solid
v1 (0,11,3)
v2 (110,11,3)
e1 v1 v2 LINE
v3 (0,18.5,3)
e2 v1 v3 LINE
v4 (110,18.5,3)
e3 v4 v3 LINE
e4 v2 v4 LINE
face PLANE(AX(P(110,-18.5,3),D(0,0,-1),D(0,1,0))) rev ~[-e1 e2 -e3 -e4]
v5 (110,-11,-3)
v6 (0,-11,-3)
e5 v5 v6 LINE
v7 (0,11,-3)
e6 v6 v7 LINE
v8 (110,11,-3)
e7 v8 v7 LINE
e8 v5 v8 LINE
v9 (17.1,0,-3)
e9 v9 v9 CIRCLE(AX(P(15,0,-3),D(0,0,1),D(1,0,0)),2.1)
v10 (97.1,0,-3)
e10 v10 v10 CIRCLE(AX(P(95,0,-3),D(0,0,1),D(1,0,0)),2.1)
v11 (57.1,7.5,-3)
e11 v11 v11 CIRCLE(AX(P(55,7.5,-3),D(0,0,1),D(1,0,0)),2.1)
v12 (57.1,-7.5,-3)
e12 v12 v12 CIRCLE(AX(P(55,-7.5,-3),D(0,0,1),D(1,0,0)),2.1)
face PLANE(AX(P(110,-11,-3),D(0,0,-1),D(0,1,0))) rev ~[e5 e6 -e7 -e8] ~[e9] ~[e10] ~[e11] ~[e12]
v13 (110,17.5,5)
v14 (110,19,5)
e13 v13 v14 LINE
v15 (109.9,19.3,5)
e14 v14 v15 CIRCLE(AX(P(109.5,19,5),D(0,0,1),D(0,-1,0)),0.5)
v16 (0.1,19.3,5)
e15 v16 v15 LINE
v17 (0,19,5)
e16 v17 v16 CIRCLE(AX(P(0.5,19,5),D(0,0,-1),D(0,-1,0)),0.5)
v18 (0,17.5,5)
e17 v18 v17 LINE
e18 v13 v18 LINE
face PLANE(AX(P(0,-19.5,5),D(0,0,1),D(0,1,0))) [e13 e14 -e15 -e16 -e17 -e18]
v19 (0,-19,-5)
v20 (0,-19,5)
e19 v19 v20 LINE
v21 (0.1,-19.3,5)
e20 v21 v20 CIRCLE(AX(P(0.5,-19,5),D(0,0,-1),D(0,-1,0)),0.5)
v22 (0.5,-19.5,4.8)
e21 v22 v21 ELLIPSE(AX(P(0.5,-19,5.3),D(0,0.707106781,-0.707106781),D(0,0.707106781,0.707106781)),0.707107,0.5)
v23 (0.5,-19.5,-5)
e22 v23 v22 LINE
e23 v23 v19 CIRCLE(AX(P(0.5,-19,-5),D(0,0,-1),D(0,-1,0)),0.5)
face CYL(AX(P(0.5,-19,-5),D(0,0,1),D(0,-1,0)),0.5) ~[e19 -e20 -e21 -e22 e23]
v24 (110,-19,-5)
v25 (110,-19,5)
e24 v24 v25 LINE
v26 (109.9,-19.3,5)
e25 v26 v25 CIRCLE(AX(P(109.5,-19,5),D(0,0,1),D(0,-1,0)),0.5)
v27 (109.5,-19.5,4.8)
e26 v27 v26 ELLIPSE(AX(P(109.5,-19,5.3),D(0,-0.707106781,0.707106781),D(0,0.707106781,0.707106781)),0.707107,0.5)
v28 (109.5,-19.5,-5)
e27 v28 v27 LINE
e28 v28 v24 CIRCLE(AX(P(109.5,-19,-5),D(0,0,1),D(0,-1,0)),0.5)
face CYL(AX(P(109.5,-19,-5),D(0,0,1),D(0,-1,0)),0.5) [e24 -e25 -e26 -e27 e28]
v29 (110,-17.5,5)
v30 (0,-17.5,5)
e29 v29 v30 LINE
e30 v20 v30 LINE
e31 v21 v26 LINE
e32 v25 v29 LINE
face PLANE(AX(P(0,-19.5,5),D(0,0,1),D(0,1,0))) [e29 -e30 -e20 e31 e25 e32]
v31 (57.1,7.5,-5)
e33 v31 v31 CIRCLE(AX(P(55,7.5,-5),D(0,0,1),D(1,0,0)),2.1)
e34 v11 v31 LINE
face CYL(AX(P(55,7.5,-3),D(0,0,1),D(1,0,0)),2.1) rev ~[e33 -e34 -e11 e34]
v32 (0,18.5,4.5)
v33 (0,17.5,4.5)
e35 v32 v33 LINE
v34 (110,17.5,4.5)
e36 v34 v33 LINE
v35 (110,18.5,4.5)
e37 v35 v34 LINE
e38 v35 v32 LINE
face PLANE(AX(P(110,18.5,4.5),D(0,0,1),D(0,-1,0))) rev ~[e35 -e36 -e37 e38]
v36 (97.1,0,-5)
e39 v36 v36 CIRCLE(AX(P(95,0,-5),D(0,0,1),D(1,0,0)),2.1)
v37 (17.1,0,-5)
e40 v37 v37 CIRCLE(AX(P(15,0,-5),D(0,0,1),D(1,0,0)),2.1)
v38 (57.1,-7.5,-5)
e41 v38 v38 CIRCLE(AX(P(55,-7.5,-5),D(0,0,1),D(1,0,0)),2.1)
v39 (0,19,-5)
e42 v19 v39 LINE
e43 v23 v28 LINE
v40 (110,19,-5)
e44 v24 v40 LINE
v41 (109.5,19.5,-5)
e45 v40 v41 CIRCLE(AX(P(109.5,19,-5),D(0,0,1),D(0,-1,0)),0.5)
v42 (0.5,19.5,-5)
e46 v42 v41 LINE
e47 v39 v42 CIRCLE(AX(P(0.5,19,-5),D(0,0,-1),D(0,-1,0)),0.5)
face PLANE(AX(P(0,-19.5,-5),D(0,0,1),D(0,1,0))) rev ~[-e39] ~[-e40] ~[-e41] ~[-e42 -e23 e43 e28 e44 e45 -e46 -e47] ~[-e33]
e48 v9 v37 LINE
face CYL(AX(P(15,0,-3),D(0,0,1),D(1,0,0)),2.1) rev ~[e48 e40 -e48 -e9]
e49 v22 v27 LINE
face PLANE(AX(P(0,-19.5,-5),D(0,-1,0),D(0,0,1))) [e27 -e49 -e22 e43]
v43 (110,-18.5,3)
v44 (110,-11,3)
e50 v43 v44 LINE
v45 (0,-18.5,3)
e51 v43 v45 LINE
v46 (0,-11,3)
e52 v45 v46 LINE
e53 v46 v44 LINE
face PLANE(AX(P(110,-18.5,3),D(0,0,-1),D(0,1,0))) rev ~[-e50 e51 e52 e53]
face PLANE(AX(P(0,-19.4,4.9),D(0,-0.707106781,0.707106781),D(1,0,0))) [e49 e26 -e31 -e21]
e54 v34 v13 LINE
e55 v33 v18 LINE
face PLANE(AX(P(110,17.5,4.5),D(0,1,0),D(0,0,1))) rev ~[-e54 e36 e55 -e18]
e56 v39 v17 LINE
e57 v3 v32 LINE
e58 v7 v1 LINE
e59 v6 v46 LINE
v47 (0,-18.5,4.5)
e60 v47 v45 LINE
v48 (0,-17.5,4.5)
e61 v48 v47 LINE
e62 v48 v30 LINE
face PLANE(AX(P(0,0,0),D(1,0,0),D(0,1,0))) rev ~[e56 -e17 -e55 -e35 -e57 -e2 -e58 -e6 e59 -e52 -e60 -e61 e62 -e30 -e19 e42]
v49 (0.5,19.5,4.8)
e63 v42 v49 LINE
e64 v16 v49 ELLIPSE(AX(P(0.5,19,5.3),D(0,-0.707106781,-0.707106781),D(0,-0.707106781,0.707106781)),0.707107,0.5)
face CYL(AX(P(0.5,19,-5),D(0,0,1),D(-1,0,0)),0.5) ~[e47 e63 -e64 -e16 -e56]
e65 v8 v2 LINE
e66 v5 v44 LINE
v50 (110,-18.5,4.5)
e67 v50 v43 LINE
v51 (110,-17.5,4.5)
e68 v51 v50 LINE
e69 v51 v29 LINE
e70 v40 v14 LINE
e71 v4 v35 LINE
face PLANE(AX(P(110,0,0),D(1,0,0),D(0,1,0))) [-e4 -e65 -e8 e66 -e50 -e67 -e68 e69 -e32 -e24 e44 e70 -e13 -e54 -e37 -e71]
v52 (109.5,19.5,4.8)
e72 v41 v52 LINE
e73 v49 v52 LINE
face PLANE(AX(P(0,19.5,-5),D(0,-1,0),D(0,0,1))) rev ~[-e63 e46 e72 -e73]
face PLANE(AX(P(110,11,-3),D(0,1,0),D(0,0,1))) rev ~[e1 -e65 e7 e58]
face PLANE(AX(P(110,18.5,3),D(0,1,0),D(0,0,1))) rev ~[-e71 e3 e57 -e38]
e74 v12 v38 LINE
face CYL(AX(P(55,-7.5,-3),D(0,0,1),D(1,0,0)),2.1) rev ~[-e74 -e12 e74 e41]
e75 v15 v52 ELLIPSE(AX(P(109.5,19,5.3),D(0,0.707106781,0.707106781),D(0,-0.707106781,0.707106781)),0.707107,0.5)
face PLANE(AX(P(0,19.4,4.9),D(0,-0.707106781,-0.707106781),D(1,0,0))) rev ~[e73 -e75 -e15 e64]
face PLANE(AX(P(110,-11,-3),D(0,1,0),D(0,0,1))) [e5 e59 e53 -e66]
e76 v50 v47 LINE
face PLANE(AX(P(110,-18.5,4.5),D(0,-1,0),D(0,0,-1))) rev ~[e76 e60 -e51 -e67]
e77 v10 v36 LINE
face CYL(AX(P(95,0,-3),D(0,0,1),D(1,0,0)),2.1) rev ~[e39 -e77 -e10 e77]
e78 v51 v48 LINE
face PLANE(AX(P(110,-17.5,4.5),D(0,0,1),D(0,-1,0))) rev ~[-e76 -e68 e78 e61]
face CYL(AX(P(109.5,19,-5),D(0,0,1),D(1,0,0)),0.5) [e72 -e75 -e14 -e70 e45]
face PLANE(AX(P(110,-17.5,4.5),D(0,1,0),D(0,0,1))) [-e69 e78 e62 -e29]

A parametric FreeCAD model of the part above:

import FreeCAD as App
import Part
import Sketcher
Q = App.Units.Quantity


def edges_at(feature, points):
    """Names of the edges that pass closest to the given points."""
    edges = feature.Shape.Edges
    near = lambda p: min(range(len(edges)), key=lambda i: edges[i].distToShape(Part.Vertex(*p))[0])
    return sorted({f"Edge{near(p) + 1}" for p in points})


def add_polygon(sketch, points):
    """Adds a closed chain of lines whose ends are joined by coincident constraints."""
    first, n = sketch.GeometryCount, len(points)
    for a, b in zip(points, points[1:] + points[:1]):
        sketch.addGeometry(Part.LineSegment(App.Vector(*a, 0), App.Vector(*b, 0)), False)
    for i in range(n):
        sketch.addConstraint(Sketcher.Constraint("Coincident", first + i, 2, first + (i + 1) % n, 1))

doc = App.newDocument("Part")
params = doc.addObject("Spreadsheet::Sheet", "Params")
for row, (alias, value) in enumerate([
    ("sketch1_width", "39 mm"),
    ("sketch1_height", "10 mm"),
    ("pad1_length", "110 mm"),
    ("sketch2_width", "35 mm"),
    ("sketch2_height", "1 mm"),
    ("pocket1_length", "110 mm"),
    ("sketch3_width", "37 mm"),
    ("sketch3_width2", "1 mm"),
    ("sketch3_height", "1.5 mm"),
    ("pocket2_length", "110 mm"),
    ("sketch4_width", "22 mm"),
    ("sketch4_height", "12 mm"),
    ("pocket3_length", "110 mm"),
    ("sketch5_diameter", "4.2 mm"),
    ("pocket4_length", "25 mm"),
    ("chamfer_size", "0.2 mm"),
    ("fillet_radius", "0.5 mm"),
], start=1):
    params.set(f"A{row}", alias)
    params.set(f"B{row}", "=" + value)
    params.setAlias(f"B{row}", alias)

body = doc.addObject("PartDesign::Body", "Body")

# Sketch on YZ plane
sketch1 = body.newObject("Sketcher::SketchObject", "Sketch")
sketch1.AttachmentSupport = (doc.getObject("YZ_Plane"), [""])
sketch1.MapMode = "FlatFace"
add_polygon(sketch1, [(-20, 5), (-20, -5), (20, -5), (20, 5)])  # lines 0-3
sketch1.addConstraint(Sketcher.Constraint("Vertical", 0))
sketch1.addConstraint(Sketcher.Constraint("Horizontal", 1))
sketch1.addConstraint(Sketcher.Constraint("Vertical", 2))
sketch1.addConstraint(Sketcher.Constraint("Horizontal", 3))
sketch1.addConstraint(Sketcher.Constraint("Symmetric", 0, 2, 2, 2, -1, 1))
sketch1.addConstraint(Sketcher.Constraint("DistanceX", 1, 1, 1, 2, Q("39 mm")))
sketch1.addConstraint(Sketcher.Constraint("DistanceY", 0, 2, 0, 1, Q("10 mm")))
sketch1.setExpression("Constraints[9]", "Params.sketch1_width")
sketch1.setExpression("Constraints[10]", "Params.sketch1_height")
pad1 = body.newObject("PartDesign::Pad", "Pad")
pad1.Profile = sketch1
pad1.setExpression("Length", "Params.pad1_length")

# Sketch on YZ plane
sketch2 = body.newObject("Sketcher::SketchObject", "Sketch001")
sketch2.AttachmentSupport = (doc.getObject("YZ_Plane"), [""])
sketch2.MapMode = "FlatFace"
sketch2.AttachmentOffset = App.Placement(App.Vector(0, 0, 110), App.Rotation())
add_polygon(sketch2, [(-17.5, 5.5), (-17.5, 4.5), (17.5, 4.5), (17.5, 5.5)])  # lines 0-3
sketch2.addConstraint(Sketcher.Constraint("Vertical", 0))
sketch2.addConstraint(Sketcher.Constraint("Horizontal", 1))
sketch2.addConstraint(Sketcher.Constraint("Vertical", 2))
sketch2.addConstraint(Sketcher.Constraint("Horizontal", 3))
sketch2.addConstraint(Sketcher.Constraint("DistanceX", 1, 1, 1, 2, Q("35 mm")))
sketch2.addConstraint(Sketcher.Constraint("DistanceY", 0, 2, 0, 1, Q("1 mm")))
sketch2.addConstraint(Sketcher.Constraint("DistanceX", 0, 2, -1, 1, Q("17.5 mm")))
sketch2.addConstraint(Sketcher.Constraint("DistanceY", -1, 1, 0, 2, Q("4.5 mm")))
sketch2.setExpression("Constraints[8]", "Params.sketch2_width")
sketch2.setExpression("Constraints[9]", "Params.sketch2_height")
pocket1 = body.newObject("PartDesign::Pocket", "Pocket")
pocket1.Profile = sketch2
pocket1.setExpression("Length", "Params.pocket1_length")

# Sketch on YZ plane
sketch3 = body.newObject("Sketcher::SketchObject", "Sketch002")
sketch3.AttachmentSupport = (doc.getObject("YZ_Plane"), [""])
sketch3.MapMode = "FlatFace"
sketch3.AttachmentOffset = App.Placement(App.Vector(0, 0, 110), App.Rotation())
add_polygon(sketch3, [(-18.5, 3), (18.5, 3), (18.5, 4.5), (17.5, 4.5), (17.5, 5.5), (-17.5, 5.5), (-17.5, 4.5), (-18.5, 4.5)])  # lines 0-7
sketch3.addConstraint(Sketcher.Constraint("Horizontal", 0))
sketch3.addConstraint(Sketcher.Constraint("Vertical", 1))
sketch3.addConstraint(Sketcher.Constraint("Horizontal", 2))
sketch3.addConstraint(Sketcher.Constraint("Vertical", 3))
sketch3.addConstraint(Sketcher.Constraint("Horizontal", 4))
sketch3.addConstraint(Sketcher.Constraint("Vertical", 5))
sketch3.addConstraint(Sketcher.Constraint("Horizontal", 6))
sketch3.addConstraint(Sketcher.Constraint("Vertical", 7))
sketch3.addConstraint(Sketcher.Constraint("Symmetric", 2, 2, 5, 2, -2))
sketch3.addConstraint(Sketcher.Constraint("Equal", 2, 6))
sketch3.addConstraint(Sketcher.Constraint("DistanceX", 0, 1, 0, 2, Q("37 mm")))
sketch3.addConstraint(Sketcher.Constraint("DistanceX", 2, 2, 2, 1, Q("1 mm")))
sketch3.addConstraint(Sketcher.Constraint("DistanceY", 1, 1, 1, 2, Q("1.5 mm")))
sketch3.addConstraint(Sketcher.Constraint("DistanceY", -1, 1, 0, 2, Q("3 mm")))
sketch3.addConstraint(Sketcher.Constraint("DistanceY", 3, 1, 3, 2, Q("1.044198 mm")))
sketch3.setExpression("Constraints[18]", "Params.sketch3_width")
sketch3.setExpression("Constraints[19]", "Params.sketch3_width2")
sketch3.setExpression("Constraints[20]", "Params.sketch3_height")
pocket2 = body.newObject("PartDesign::Pocket", "Pocket001")
pocket2.Profile = sketch3
pocket2.setExpression("Length", "Params.pocket2_length")

# Sketch on YZ plane
sketch4 = body.newObject("Sketcher::SketchObject", "Sketch003")
sketch4.AttachmentSupport = (doc.getObject("YZ_Plane"), [""])
sketch4.MapMode = "FlatFace"
sketch4.AttachmentOffset = App.Placement(App.Vector(0, 0, 110), App.Rotation())
add_polygon(sketch4, [(-11, 9), (-11, -3), (11, -3), (11, 9)])  # lines 0-3
sketch4.addConstraint(Sketcher.Constraint("Vertical", 0))
sketch4.addConstraint(Sketcher.Constraint("Horizontal", 1))
sketch4.addConstraint(Sketcher.Constraint("Vertical", 2))
sketch4.addConstraint(Sketcher.Constraint("Horizontal", 3))
sketch4.addConstraint(Sketcher.Constraint("DistanceX", 1, 1, 1, 2, Q("22 mm")))
sketch4.addConstraint(Sketcher.Constraint("DistanceY", 0, 2, 0, 1, Q("12 mm")))
sketch4.addConstraint(Sketcher.Constraint("DistanceX", 0, 2, -1, 1, Q("11 mm")))
sketch4.addConstraint(Sketcher.Constraint("DistanceY", 0, 2, -1, 1, Q("3 mm")))
sketch4.setExpression("Constraints[8]", "Params.sketch4_width")
sketch4.setExpression("Constraints[9]", "Params.sketch4_height")
pocket3 = body.newObject("PartDesign::Pocket", "Pocket002")
pocket3.Profile = sketch4
pocket3.setExpression("Length", "Params.pocket3_length")

# Sketch on XY plane
sketch5 = body.newObject("Sketcher::SketchObject", "Sketch004")
sketch5.AttachmentSupport = (doc.getObject("XY_Plane"), [""])
sketch5.MapMode = "FlatFace"
sketch5.AttachmentOffset = App.Placement(App.Vector(0, 0, -3), App.Rotation())
sketch5.addGeometry(Part.Circle(App.Vector(15, 0, 0), App.Vector(0, 0, 1), 2.1), False)
sketch5.addGeometry(Part.Circle(App.Vector(95, 0, 0), App.Vector(0, 0, 1), 2.1), False)
sketch5.addGeometry(Part.Circle(App.Vector(55, -7.5, 0), App.Vector(0, 0, 1), 2.1), False)
sketch5.addGeometry(Part.Circle(App.Vector(55, 7.5, 0), App.Vector(0, 0, 1), 2.1), False)
sketch5.addConstraint(Sketcher.Constraint("Equal", 0, 1))
sketch5.addConstraint(Sketcher.Constraint("Equal", 1, 2))
sketch5.addConstraint(Sketcher.Constraint("Equal", 2, 3))
sketch5.addConstraint(Sketcher.Constraint("Symmetric", 2, 3, 3, 3, -1))
sketch5.addConstraint(Sketcher.Constraint("PointOnObject", 0, 3, -1))
sketch5.addConstraint(Sketcher.Constraint("PointOnObject", 1, 3, -1))
sketch5.addConstraint(Sketcher.Constraint("Diameter", 0, Q("4.2 mm")))
sketch5.addConstraint(Sketcher.Constraint("DistanceX", -1, 1, 0, 3, Q("15 mm")))
sketch5.addConstraint(Sketcher.Constraint("DistanceX", -1, 1, 1, 3, Q("95 mm")))
sketch5.addConstraint(Sketcher.Constraint("DistanceX", -1, 1, 2, 3, Q("55 mm")))
sketch5.addConstraint(Sketcher.Constraint("DistanceY", 2, 3, 3, 3, Q("15 mm")))
sketch5.setExpression("Constraints[6]", "Params.sketch5_diameter")
pocket4 = body.newObject("PartDesign::Pocket", "Pocket003")
pocket4.Profile = sketch5
pocket4.setExpression("Length", "Params.pocket4_length")
doc.recompute()

chamfer = body.newObject("PartDesign::Chamfer", "Chamfer")
chamfer.Base = (pocket4, edges_at(pocket4, [(55, -19.5, 5), (55, 19.5, 5)]))
chamfer.setExpression("Size", "Params.chamfer_size")
doc.recompute()

fillet = body.newObject("PartDesign::Fillet", "Fillet")
fillet.Base = (chamfer, edges_at(chamfer, [
    (0, -19.5, -0.1),
    (0, 19.5, -0.1),
    (110, -19.5, -0.1),
    (110, 19.5, -0.1),
]))
fillet.setExpression("Radius", "Params.fillet_radius")

doc.recompute()
